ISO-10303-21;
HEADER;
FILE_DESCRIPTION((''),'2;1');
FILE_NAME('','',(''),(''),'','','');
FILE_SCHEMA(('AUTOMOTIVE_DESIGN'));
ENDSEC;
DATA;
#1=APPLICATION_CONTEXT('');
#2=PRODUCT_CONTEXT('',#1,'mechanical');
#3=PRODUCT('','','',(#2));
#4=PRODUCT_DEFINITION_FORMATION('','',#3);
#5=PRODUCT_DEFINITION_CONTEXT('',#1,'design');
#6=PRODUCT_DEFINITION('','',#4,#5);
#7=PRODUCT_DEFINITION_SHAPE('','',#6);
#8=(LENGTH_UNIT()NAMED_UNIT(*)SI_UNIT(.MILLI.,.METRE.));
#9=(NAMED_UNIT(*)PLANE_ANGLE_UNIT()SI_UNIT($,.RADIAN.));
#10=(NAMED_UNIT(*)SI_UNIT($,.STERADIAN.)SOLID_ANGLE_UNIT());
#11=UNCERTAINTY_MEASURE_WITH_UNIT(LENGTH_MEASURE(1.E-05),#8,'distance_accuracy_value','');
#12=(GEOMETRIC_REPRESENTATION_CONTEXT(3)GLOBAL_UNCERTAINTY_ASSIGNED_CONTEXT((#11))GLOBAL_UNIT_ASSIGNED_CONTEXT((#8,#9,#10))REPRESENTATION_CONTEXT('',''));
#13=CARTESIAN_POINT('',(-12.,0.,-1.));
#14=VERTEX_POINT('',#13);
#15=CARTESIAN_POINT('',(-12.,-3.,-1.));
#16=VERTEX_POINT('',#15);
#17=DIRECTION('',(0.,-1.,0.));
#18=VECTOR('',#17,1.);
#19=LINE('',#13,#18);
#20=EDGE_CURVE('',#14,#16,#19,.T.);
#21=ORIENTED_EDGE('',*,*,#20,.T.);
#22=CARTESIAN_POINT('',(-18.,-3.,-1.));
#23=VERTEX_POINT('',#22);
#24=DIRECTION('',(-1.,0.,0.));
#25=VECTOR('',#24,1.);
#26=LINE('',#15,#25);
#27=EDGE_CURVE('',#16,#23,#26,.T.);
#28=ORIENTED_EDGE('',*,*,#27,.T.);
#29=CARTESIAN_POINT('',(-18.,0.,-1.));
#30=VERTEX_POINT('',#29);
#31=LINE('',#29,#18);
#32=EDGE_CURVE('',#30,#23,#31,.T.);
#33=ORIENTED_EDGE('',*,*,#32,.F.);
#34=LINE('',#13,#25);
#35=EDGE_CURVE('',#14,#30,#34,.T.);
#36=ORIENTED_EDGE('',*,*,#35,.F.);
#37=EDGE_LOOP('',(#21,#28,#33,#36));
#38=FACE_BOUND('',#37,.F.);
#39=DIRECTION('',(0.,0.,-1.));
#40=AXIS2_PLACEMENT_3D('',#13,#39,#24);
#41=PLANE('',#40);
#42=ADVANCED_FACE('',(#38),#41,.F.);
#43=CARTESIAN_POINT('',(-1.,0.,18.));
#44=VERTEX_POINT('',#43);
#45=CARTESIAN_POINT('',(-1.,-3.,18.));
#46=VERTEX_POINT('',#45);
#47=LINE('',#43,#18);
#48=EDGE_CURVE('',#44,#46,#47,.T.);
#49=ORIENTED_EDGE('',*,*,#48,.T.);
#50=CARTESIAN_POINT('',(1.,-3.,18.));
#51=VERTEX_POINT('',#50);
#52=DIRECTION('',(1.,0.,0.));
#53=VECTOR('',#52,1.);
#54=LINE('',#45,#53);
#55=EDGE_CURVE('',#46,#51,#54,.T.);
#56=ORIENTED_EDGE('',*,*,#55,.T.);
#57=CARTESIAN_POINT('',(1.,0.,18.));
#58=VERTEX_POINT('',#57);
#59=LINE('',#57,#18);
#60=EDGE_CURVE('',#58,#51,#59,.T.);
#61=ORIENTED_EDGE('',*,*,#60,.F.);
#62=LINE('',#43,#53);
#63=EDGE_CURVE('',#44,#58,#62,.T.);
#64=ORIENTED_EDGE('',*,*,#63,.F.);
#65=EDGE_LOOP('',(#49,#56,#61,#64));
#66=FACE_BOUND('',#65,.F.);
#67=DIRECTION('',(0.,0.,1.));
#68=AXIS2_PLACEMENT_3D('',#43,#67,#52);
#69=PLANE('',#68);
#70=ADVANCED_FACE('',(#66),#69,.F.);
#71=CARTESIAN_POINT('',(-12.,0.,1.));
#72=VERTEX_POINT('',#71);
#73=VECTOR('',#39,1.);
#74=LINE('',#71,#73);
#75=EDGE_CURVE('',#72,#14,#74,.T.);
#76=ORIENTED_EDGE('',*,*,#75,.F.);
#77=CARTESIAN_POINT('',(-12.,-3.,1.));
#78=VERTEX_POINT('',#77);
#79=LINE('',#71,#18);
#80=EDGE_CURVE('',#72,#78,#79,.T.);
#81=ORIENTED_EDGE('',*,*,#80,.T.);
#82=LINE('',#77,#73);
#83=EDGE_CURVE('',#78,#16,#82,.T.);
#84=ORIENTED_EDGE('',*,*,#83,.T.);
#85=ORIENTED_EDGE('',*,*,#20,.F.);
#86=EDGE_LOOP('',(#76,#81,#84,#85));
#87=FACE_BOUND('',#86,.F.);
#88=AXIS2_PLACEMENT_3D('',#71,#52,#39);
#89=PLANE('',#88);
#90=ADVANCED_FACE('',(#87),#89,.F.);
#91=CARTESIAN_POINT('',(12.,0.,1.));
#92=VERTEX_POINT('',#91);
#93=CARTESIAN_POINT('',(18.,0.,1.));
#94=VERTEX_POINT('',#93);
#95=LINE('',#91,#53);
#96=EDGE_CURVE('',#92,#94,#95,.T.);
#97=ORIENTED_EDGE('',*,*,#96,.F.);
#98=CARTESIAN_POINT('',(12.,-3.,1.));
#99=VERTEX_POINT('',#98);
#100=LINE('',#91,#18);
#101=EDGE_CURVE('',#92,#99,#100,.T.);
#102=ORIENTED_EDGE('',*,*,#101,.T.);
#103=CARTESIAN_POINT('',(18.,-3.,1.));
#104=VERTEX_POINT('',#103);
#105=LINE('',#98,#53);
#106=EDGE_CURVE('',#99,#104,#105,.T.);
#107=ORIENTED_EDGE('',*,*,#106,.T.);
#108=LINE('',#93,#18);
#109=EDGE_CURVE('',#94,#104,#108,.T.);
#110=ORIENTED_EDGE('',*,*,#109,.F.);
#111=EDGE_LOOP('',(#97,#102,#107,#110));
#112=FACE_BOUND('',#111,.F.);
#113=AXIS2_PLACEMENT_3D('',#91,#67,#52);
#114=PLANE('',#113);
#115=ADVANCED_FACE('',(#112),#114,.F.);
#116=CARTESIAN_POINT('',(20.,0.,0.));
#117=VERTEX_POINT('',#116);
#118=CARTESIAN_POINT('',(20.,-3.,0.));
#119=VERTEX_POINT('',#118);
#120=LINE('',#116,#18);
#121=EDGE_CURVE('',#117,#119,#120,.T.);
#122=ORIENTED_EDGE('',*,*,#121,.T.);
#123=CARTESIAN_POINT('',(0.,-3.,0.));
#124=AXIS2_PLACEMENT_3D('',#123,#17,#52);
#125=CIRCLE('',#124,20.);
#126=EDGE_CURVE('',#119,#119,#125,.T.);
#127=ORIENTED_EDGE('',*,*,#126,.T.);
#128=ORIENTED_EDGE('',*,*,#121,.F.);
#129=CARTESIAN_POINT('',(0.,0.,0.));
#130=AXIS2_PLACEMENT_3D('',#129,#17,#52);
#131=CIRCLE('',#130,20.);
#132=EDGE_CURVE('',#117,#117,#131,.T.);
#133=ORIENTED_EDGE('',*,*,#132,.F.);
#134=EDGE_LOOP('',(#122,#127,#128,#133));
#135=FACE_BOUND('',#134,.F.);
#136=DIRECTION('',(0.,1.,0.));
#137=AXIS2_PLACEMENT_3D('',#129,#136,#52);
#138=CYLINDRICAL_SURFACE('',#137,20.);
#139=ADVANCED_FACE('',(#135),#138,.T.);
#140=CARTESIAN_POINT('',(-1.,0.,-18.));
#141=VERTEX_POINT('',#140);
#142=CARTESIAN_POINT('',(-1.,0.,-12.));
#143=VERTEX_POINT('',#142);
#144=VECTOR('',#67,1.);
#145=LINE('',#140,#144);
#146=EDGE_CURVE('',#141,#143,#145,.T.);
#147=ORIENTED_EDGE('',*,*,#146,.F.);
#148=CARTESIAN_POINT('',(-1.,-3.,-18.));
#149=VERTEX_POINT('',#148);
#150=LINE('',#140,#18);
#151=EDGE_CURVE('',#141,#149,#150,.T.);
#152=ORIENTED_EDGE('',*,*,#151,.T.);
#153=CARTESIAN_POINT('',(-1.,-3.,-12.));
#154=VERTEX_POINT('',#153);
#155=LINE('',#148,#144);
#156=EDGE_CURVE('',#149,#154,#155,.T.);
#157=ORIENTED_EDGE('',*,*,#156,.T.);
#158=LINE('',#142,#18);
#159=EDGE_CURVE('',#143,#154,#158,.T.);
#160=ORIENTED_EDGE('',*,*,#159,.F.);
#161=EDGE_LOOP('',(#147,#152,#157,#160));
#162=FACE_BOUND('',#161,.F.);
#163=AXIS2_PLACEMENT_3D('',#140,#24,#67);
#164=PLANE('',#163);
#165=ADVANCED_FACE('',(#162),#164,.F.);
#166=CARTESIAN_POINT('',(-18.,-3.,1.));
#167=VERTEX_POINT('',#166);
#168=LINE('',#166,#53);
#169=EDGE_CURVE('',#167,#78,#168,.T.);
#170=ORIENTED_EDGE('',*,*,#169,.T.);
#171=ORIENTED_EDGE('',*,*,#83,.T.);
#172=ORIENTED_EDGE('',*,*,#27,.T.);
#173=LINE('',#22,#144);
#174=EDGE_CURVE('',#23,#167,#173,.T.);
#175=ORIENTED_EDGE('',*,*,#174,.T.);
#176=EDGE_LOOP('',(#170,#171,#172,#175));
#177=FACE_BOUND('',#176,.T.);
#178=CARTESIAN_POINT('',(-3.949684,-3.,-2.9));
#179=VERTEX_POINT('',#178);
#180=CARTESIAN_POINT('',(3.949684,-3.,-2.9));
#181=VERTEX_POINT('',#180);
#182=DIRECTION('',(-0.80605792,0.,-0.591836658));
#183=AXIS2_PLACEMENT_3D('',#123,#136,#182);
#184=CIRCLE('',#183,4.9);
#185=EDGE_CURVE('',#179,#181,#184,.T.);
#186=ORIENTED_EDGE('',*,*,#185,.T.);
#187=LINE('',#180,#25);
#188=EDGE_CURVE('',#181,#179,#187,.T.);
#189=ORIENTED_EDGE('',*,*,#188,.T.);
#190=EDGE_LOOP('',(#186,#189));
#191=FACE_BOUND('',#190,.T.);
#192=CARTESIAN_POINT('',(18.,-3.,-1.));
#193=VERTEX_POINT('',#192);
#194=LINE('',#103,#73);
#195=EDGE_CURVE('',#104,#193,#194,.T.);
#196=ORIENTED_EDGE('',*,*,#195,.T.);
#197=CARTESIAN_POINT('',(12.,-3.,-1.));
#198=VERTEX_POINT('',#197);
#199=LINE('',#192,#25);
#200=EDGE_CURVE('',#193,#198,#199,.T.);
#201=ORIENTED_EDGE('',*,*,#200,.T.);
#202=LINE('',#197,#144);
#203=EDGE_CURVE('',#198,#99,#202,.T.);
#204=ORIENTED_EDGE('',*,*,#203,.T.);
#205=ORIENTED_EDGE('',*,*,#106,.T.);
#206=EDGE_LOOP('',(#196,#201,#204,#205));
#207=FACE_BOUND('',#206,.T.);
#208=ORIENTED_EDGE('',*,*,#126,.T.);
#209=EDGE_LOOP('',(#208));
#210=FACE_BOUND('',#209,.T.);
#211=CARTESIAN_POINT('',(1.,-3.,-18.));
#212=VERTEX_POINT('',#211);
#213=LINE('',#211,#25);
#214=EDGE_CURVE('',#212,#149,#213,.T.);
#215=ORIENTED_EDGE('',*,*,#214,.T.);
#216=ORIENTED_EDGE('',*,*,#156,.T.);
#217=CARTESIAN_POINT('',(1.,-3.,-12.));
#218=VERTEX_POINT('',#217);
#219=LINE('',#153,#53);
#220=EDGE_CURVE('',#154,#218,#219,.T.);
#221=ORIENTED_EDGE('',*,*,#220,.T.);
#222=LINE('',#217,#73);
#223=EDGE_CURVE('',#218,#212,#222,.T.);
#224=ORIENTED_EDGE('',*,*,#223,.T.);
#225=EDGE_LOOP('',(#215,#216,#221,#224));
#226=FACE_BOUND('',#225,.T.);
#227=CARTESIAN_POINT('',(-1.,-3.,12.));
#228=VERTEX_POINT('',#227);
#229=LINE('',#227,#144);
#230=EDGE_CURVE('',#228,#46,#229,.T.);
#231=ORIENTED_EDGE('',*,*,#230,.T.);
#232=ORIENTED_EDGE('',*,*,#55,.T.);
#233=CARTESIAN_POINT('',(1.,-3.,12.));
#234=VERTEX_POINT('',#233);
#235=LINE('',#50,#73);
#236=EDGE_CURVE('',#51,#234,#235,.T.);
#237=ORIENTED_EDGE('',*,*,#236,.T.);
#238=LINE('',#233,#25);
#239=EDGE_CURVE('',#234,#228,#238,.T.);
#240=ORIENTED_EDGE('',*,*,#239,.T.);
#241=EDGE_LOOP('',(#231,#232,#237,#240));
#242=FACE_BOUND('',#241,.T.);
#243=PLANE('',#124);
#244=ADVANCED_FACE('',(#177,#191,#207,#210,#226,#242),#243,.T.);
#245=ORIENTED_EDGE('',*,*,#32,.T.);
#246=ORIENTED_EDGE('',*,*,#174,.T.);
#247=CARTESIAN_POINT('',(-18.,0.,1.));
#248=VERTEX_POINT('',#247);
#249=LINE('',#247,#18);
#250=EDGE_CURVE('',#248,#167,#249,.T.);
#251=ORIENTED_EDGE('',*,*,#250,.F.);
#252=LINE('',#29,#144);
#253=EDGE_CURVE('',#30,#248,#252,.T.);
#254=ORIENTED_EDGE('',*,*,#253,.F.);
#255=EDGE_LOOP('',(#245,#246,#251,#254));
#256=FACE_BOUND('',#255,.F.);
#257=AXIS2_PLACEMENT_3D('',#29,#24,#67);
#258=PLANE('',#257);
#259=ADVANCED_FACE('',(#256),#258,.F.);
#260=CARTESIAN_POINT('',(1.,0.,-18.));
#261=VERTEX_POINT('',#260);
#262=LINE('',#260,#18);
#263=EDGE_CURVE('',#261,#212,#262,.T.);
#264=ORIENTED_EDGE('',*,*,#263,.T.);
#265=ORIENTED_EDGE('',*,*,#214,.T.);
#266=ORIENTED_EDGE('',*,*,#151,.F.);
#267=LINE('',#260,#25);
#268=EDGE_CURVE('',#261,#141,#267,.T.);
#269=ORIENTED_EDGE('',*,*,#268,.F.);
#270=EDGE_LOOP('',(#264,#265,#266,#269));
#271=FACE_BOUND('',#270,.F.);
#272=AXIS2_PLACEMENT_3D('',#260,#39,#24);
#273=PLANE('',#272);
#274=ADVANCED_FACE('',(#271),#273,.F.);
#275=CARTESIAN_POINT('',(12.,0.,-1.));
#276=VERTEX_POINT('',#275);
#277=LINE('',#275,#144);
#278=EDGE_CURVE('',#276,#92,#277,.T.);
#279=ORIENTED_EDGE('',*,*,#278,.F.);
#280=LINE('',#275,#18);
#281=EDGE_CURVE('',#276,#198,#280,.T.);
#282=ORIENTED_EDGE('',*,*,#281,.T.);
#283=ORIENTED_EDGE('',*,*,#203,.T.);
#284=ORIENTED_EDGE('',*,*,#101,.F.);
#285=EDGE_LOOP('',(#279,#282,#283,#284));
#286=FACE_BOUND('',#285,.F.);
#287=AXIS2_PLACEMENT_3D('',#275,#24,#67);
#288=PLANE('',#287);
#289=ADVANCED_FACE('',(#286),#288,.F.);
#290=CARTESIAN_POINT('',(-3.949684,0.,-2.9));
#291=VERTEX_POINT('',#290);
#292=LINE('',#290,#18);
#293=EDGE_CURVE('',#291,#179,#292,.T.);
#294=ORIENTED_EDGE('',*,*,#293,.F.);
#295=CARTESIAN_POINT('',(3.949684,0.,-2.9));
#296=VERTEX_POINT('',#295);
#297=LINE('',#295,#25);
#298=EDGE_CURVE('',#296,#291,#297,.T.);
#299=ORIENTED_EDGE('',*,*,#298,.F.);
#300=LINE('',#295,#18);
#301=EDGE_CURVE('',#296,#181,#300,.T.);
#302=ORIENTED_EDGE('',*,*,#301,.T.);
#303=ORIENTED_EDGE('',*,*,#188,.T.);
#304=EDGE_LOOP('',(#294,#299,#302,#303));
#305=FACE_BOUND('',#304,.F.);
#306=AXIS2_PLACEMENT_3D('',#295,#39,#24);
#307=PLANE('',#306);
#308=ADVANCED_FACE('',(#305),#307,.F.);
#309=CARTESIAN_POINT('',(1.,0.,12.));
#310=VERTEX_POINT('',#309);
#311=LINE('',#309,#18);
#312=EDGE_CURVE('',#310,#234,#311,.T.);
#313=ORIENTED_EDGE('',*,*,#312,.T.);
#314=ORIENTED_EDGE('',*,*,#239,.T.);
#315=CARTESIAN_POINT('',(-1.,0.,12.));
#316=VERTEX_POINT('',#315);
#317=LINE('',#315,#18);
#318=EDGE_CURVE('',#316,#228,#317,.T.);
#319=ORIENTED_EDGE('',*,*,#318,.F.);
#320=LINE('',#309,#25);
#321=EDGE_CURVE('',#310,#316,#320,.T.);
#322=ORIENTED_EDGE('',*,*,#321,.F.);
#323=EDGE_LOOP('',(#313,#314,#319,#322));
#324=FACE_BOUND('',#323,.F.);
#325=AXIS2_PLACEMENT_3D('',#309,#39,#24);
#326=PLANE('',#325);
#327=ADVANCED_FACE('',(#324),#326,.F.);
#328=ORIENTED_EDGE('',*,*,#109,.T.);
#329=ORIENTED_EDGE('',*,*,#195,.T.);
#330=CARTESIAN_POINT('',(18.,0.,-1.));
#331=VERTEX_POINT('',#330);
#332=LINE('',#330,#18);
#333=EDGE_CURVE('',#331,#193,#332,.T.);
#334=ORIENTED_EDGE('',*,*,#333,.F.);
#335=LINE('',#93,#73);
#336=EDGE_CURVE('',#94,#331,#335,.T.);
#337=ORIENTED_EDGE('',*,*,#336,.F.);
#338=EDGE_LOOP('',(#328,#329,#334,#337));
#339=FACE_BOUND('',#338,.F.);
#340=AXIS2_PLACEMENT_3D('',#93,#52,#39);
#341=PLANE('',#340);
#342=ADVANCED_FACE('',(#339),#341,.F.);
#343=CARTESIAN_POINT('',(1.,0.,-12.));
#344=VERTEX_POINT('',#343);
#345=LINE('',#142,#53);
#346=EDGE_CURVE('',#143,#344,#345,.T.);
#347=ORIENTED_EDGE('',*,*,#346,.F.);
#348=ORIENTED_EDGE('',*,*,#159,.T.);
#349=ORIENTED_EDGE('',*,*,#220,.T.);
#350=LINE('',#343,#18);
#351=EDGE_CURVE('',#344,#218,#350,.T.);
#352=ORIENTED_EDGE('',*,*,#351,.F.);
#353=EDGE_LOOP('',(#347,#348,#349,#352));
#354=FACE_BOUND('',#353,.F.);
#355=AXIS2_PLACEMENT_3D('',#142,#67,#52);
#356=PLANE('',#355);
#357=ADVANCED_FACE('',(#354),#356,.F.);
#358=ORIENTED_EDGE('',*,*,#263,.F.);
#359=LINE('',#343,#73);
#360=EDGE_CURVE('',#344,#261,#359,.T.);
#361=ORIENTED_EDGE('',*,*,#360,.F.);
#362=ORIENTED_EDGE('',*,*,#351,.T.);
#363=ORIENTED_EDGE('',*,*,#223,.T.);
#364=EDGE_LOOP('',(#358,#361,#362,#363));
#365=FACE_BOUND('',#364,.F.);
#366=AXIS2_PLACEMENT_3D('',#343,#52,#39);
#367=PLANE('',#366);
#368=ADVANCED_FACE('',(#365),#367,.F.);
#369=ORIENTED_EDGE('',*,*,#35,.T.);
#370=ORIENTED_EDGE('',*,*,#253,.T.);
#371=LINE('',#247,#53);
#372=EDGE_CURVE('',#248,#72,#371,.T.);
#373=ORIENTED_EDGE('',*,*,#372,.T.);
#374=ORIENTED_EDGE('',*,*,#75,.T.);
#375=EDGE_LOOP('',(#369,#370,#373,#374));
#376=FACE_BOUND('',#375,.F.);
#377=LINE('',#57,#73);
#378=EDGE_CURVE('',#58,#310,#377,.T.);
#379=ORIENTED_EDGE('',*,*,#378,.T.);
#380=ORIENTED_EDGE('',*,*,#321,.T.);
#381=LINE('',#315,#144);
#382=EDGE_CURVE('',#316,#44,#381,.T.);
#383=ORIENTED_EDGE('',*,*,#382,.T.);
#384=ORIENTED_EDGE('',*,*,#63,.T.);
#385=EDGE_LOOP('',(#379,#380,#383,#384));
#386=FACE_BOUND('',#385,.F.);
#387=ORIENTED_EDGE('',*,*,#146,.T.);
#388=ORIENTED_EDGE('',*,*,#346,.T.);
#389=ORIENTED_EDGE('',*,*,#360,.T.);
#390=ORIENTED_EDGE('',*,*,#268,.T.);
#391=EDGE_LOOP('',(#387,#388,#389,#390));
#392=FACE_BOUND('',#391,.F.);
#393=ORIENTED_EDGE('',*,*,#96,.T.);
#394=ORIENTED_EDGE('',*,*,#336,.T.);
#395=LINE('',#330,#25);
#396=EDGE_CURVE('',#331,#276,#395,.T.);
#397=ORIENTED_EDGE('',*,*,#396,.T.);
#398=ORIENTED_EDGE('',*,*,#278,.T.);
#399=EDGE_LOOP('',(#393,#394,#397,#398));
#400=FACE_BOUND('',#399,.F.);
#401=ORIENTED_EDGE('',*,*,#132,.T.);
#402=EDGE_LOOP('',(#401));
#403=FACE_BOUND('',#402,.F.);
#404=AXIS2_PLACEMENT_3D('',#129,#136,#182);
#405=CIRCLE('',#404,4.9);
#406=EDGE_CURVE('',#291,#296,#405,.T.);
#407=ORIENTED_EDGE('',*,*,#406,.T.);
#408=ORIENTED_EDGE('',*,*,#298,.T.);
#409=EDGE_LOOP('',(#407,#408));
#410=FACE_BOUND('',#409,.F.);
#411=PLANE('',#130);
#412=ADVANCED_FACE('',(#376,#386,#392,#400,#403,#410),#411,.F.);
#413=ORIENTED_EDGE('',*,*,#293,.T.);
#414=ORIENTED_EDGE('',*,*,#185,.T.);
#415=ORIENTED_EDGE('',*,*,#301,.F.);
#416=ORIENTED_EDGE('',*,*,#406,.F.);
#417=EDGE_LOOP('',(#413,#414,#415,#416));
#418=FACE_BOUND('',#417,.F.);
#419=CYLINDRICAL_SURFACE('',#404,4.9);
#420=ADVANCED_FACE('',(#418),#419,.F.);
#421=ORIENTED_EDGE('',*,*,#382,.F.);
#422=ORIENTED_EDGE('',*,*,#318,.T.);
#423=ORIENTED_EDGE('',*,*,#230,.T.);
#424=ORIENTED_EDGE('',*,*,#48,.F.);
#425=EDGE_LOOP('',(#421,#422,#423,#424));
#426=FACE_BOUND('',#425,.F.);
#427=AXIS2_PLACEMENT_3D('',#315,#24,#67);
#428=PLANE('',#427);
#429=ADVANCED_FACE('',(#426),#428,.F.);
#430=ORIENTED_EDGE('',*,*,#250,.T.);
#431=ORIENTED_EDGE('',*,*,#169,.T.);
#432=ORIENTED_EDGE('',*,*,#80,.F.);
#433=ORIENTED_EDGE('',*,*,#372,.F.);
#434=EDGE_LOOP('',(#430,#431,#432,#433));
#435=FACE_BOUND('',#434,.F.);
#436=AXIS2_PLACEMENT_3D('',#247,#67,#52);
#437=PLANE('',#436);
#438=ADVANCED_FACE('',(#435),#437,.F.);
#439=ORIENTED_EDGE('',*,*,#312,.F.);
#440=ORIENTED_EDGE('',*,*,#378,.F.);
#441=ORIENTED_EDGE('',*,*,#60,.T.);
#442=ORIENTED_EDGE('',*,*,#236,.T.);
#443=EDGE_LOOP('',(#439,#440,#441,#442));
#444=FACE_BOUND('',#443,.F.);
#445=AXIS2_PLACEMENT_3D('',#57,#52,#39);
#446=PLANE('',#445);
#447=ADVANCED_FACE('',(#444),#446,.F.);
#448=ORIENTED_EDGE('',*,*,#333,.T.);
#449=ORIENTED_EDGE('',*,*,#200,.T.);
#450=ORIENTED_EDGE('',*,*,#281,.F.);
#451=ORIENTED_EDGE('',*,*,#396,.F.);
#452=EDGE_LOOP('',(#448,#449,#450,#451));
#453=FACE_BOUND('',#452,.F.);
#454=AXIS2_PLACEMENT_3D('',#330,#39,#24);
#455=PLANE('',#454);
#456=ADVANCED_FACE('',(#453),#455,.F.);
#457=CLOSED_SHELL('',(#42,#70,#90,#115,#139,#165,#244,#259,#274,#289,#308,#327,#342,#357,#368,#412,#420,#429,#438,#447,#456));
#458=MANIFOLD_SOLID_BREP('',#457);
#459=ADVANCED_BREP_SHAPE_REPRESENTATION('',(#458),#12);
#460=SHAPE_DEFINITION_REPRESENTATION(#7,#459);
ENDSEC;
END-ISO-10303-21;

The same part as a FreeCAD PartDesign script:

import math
import FreeCAD as App
import Part
import Sketcher
from FreeCAD import Vector

doc = App.newDocument("Part")
params = doc.addObject("Spreadsheet::Sheet", "Params")
for row, (alias, value) in enumerate([
    ("sketch1_diameter", "40 mm"),
    ("sketch1_radius", "4.9 mm"),
    ("sketch1_width", "2 mm"),
    ("sketch1_width2", "6 mm"),
    ("pad1_length", "3 mm"),
], start=1):
    params.set(f"A{row}", alias)
    params.set(f"B{row}", "=" + value)
    params.setAlias(f"B{row}", alias)

body = doc.addObject("PartDesign::Body", "Body")

sketch1 = body.newObject("Sketcher::SketchObject", "Sketch")
sketch1.AttachmentSupport = (doc.getObject("XZ_Plane"), [""])
sketch1.MapMode = "FlatFace"
sketch1.addGeometry([
    Part.Circle(Vector(0, 0, 0), Vector(0, 0, 1), 20),
    Part.LineSegment(Vector(-1, -18, 0), Vector(-1, -12, 0)),
    Part.LineSegment(Vector(-1, -12, 0), Vector(1, -12, 0)),
    Part.LineSegment(Vector(1, -12, 0), Vector(1, -18, 0)),
    Part.LineSegment(Vector(1, -18, 0), Vector(-1, -18, 0)),
    Part.LineSegment(Vector(-18, 1, 0), Vector(-12, 1, 0)),
    Part.LineSegment(Vector(-12, 1, 0), Vector(-12, -1, 0)),
    Part.LineSegment(Vector(-12, -1, 0), Vector(-18, -1, 0)),
    Part.LineSegment(Vector(-18, -1, 0), Vector(-18, 1, 0)),
    Part.LineSegment(Vector(3.9, -2.9, 0), Vector(-3.9, -2.9, 0)),
    Part.ArcOfCircle(Part.Circle(Vector(0, 0, 0), Vector(0, 0, 1), 4.9), math.radians(-36), math.radians(216)),
    Part.LineSegment(Vector(18, -1, 0), Vector(12, -1, 0)),
    Part.LineSegment(Vector(12, -1, 0), Vector(12, 1, 0)),
    Part.LineSegment(Vector(12, 1, 0), Vector(18, 1, 0)),
    Part.LineSegment(Vector(18, 1, 0), Vector(18, -1, 0)),
    Part.LineSegment(Vector(1, 18, 0), Vector(1, 12, 0)),
    Part.LineSegment(Vector(1, 12, 0), Vector(-1, 12, 0)),
    Part.LineSegment(Vector(-1, 12, 0), Vector(-1, 18, 0)),
    Part.LineSegment(Vector(-1, 18, 0), Vector(1, 18, 0)),
], False)
sketch1.addConstraint([
    Sketcher.Constraint("Coincident", 1, 2, 2, 1),
    Sketcher.Constraint("Coincident", 2, 2, 3, 1),
    Sketcher.Constraint("Coincident", 3, 2, 4, 1),
    Sketcher.Constraint("Coincident", 4, 2, 1, 1),
    Sketcher.Constraint("Coincident", 5, 2, 6, 1),
    Sketcher.Constraint("Coincident", 6, 2, 7, 1),
    Sketcher.Constraint("Coincident", 7, 2, 8, 1),
    Sketcher.Constraint("Coincident", 8, 2, 5, 1),
    Sketcher.Constraint("Coincident", 9, 1, 10, 1),
    Sketcher.Constraint("Coincident", 10, 2, 9, 2),
    Sketcher.Constraint("Coincident", 11, 2, 12, 1),
    Sketcher.Constraint("Coincident", 12, 2, 13, 1),
    Sketcher.Constraint("Coincident", 13, 2, 14, 1),
    Sketcher.Constraint("Coincident", 14, 2, 11, 1),
    Sketcher.Constraint("Coincident", 15, 2, 16, 1),
    Sketcher.Constraint("Coincident", 16, 2, 17, 1),
    Sketcher.Constraint("Coincident", 17, 2, 18, 1),
    Sketcher.Constraint("Coincident", 18, 2, 15, 1),
    Sketcher.Constraint("Vertical", 1),
    Sketcher.Constraint("Horizontal", 2),
    Sketcher.Constraint("Vertical", 3),
    Sketcher.Constraint("Horizontal", 4),
    Sketcher.Constraint("Horizontal", 5),
    Sketcher.Constraint("Vertical", 6),
    Sketcher.Constraint("Horizontal", 7),
    Sketcher.Constraint("Vertical", 8),
    Sketcher.Constraint("Horizontal", 9),
    Sketcher.Constraint("Horizontal", 11),
    Sketcher.Constraint("Vertical", 12),
    Sketcher.Constraint("Horizontal", 13),
    Sketcher.Constraint("Vertical", 14),
    Sketcher.Constraint("Vertical", 15),
    Sketcher.Constraint("Horizontal", 16),
    Sketcher.Constraint("Vertical", 17),
    Sketcher.Constraint("Horizontal", 18),
    Sketcher.Constraint("Coincident", 0, 3, -1, 1),
    Sketcher.Constraint("Coincident", 10, 3, -1, 1),
    Sketcher.Constraint("Symmetric", 5, 2, 11, 2, -1, 1),
    Sketcher.Constraint("Symmetric", 7, 2, 13, 2, -1, 1),
    Sketcher.Constraint("Symmetric", 1, 2, 15, 2, -1, 1),
    Sketcher.Constraint("Symmetric", 3, 2, 17, 2, -1, 1),
    Sketcher.Constraint("Horizontal", 7, 2, 11, 2),
    Sketcher.Constraint("Vertical", 3, 2, 15, 2),
    Sketcher.Constraint("Equal", 13, 1),
    Sketcher.Constraint("Equal", 18, 6),
    Sketcher.Constraint("Diameter", 0, 40.0),
    Sketcher.Constraint("Radius", 10, 4.9),
    Sketcher.Constraint("DistanceX", 2, 1, 2, 2, 2.0),
    Sketcher.Constraint("DistanceX", 5, 1, 5, 2, 6.0),
    Sketcher.Constraint("DistanceY", 1, 2, -1, 1, 12.0),
    Sketcher.Constraint("DistanceX", 5, 2, -1, 1, 12.0),
    Sketcher.Constraint("DistanceY", 9, 1, -1, 1, 2.9),
])
sketch1.setExpression("Constraints[45]", "Params.sketch1_diameter")
sketch1.setExpression("Constraints[46]", "Params.sketch1_radius")
sketch1.setExpression("Constraints[47]", "Params.sketch1_width")
sketch1.setExpression("Constraints[48]", "Params.sketch1_width2")
pad1 = body.newObject("PartDesign::Pad", "Pad")
pad1.Profile = sketch1
pad1.setExpression("Length", "Params.pad1_length")

doc.recompute()
